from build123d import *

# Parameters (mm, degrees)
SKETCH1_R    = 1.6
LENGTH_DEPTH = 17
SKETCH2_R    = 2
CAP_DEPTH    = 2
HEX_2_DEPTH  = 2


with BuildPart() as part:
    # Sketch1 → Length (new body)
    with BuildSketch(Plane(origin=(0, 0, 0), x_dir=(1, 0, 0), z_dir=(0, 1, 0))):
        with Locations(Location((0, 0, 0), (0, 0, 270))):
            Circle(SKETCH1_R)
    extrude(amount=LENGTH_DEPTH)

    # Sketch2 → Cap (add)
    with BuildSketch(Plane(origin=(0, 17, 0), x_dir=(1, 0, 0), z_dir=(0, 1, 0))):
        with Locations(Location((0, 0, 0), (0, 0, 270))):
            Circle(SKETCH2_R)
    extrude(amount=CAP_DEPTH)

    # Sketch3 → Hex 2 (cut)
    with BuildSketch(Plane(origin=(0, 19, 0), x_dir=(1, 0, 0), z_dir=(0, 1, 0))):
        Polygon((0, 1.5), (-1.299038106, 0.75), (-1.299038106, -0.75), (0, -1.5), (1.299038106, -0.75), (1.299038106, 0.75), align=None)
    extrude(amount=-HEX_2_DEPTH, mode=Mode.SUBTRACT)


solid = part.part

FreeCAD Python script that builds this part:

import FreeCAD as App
import Part
import Sketcher
from FreeCAD import Vector
Q = App.Units.Quantity

doc = App.newDocument("Part")
body = doc.addObject("PartDesign::Body", "Body")

sketch1 = body.newObject("Sketcher::SketchObject", "Sketch")
sketch1.AttachmentSupport = (doc.getObject("XZ_Plane"), [""])
sketch1.MapMode = "FlatFace"
sketch1.addGeometry(Part.Circle(Vector(0, 0, 0), Vector(0, 0, 1), 1.6), False)
sketch1.addConstraint([
    Sketcher.Constraint("Coincident", 0, 3, -1, 1),
    Sketcher.Constraint("Diameter", 0, Q("3.2 mm")),
])
pad1 = body.newObject("PartDesign::Pad", "Pad")
pad1.Profile = sketch1
pad1.Length = 17
pad1.Reversed = True

sketch2 = body.newObject("Sketcher::SketchObject", "Sketch001")
sketch2.AttachmentSupport = (doc.getObject("XZ_Plane"), [""])
sketch2.MapMode = "FlatFace"
sketch2.AttachmentOffset = App.Placement(Vector(0, 0, -17), App.Rotation())
sketch2.addGeometry(Part.Circle(Vector(0, 0, 0), Vector(0, 0, 1), 2), False)
sketch2.addConstraint([
    Sketcher.Constraint("Coincident", 0, 3, -1, 1),
    Sketcher.Constraint("Diameter", 0, Q("4 mm")),
])
pad2 = body.newObject("PartDesign::Pad", "Pad001")
pad2.Profile = sketch2
pad2.Length = 2
pad2.Reversed = True

sketch3 = body.newObject("Sketcher::SketchObject", "Sketch002")
sketch3.AttachmentSupport = (doc.getObject("XZ_Plane"), [""])
sketch3.MapMode = "FlatFace"
sketch3.AttachmentOffset = App.Placement(Vector(0, 0, -19), App.Rotation())
sketch3.addGeometry([
    Part.LineSegment(Vector(0, -1.5, 0), Vector(-1.3, -0.8, 0)),
    Part.LineSegment(Vector(-1.3, -0.8, 0), Vector(-1.3, 0.8, 0)),
    Part.LineSegment(Vector(-1.3, 0.8, 0), Vector(0, 1.5, 0)),
    Part.LineSegment(Vector(0, 1.5, 0), Vector(1.3, 0.8, 0)),
    Part.LineSegment(Vector(1.3, 0.8, 0), Vector(1.3, -0.8, 0)),
    Part.LineSegment(Vector(1.3, -0.8, 0), Vector(0, -1.5, 0)),
], False)
sketch3.addConstraint([
    Sketcher.Constraint("Coincident", 0, 2, 1, 1),
    Sketcher.Constraint("Coincident", 1, 2, 2, 1),
    Sketcher.Constraint("Coincident", 2, 2, 3, 1),
    Sketcher.Constraint("Coincident", 3, 2, 4, 1),
    Sketcher.Constraint("Coincident", 4, 2, 5, 1),
    Sketcher.Constraint("Coincident", 5, 2, 0, 1),
    Sketcher.Constraint("Vertical", 1),
    Sketcher.Constraint("Vertical", 4),
    Sketcher.Constraint("Symmetric", 0, 2, 3, 2, -1, 1),
    Sketcher.Constraint("Symmetric", 2, 2, 5, 2, -1, 1),
    Sketcher.Constraint("PointOnObject", 2, 2, -2),
    Sketcher.Constraint("Parallel", 2, 5),
    Sketcher.Constraint("Horizontal", 1, 2, 3, 2),
    Sketcher.Constraint("Angle", 0, Q("150 deg")),
    Sketcher.Constraint("DistanceY", 1, 1, 1, 2, Q("1.5 mm")),
    Sketcher.Constraint("DistanceY", 5, 2, 2, 2, Q("3 mm")),
])
pocket1 = body.newObject("PartDesign::Pocket", "Pocket")
pocket1.Profile = sketch3
pocket1.Length = 2
pocket1.Reversed = True

doc.recompute()
